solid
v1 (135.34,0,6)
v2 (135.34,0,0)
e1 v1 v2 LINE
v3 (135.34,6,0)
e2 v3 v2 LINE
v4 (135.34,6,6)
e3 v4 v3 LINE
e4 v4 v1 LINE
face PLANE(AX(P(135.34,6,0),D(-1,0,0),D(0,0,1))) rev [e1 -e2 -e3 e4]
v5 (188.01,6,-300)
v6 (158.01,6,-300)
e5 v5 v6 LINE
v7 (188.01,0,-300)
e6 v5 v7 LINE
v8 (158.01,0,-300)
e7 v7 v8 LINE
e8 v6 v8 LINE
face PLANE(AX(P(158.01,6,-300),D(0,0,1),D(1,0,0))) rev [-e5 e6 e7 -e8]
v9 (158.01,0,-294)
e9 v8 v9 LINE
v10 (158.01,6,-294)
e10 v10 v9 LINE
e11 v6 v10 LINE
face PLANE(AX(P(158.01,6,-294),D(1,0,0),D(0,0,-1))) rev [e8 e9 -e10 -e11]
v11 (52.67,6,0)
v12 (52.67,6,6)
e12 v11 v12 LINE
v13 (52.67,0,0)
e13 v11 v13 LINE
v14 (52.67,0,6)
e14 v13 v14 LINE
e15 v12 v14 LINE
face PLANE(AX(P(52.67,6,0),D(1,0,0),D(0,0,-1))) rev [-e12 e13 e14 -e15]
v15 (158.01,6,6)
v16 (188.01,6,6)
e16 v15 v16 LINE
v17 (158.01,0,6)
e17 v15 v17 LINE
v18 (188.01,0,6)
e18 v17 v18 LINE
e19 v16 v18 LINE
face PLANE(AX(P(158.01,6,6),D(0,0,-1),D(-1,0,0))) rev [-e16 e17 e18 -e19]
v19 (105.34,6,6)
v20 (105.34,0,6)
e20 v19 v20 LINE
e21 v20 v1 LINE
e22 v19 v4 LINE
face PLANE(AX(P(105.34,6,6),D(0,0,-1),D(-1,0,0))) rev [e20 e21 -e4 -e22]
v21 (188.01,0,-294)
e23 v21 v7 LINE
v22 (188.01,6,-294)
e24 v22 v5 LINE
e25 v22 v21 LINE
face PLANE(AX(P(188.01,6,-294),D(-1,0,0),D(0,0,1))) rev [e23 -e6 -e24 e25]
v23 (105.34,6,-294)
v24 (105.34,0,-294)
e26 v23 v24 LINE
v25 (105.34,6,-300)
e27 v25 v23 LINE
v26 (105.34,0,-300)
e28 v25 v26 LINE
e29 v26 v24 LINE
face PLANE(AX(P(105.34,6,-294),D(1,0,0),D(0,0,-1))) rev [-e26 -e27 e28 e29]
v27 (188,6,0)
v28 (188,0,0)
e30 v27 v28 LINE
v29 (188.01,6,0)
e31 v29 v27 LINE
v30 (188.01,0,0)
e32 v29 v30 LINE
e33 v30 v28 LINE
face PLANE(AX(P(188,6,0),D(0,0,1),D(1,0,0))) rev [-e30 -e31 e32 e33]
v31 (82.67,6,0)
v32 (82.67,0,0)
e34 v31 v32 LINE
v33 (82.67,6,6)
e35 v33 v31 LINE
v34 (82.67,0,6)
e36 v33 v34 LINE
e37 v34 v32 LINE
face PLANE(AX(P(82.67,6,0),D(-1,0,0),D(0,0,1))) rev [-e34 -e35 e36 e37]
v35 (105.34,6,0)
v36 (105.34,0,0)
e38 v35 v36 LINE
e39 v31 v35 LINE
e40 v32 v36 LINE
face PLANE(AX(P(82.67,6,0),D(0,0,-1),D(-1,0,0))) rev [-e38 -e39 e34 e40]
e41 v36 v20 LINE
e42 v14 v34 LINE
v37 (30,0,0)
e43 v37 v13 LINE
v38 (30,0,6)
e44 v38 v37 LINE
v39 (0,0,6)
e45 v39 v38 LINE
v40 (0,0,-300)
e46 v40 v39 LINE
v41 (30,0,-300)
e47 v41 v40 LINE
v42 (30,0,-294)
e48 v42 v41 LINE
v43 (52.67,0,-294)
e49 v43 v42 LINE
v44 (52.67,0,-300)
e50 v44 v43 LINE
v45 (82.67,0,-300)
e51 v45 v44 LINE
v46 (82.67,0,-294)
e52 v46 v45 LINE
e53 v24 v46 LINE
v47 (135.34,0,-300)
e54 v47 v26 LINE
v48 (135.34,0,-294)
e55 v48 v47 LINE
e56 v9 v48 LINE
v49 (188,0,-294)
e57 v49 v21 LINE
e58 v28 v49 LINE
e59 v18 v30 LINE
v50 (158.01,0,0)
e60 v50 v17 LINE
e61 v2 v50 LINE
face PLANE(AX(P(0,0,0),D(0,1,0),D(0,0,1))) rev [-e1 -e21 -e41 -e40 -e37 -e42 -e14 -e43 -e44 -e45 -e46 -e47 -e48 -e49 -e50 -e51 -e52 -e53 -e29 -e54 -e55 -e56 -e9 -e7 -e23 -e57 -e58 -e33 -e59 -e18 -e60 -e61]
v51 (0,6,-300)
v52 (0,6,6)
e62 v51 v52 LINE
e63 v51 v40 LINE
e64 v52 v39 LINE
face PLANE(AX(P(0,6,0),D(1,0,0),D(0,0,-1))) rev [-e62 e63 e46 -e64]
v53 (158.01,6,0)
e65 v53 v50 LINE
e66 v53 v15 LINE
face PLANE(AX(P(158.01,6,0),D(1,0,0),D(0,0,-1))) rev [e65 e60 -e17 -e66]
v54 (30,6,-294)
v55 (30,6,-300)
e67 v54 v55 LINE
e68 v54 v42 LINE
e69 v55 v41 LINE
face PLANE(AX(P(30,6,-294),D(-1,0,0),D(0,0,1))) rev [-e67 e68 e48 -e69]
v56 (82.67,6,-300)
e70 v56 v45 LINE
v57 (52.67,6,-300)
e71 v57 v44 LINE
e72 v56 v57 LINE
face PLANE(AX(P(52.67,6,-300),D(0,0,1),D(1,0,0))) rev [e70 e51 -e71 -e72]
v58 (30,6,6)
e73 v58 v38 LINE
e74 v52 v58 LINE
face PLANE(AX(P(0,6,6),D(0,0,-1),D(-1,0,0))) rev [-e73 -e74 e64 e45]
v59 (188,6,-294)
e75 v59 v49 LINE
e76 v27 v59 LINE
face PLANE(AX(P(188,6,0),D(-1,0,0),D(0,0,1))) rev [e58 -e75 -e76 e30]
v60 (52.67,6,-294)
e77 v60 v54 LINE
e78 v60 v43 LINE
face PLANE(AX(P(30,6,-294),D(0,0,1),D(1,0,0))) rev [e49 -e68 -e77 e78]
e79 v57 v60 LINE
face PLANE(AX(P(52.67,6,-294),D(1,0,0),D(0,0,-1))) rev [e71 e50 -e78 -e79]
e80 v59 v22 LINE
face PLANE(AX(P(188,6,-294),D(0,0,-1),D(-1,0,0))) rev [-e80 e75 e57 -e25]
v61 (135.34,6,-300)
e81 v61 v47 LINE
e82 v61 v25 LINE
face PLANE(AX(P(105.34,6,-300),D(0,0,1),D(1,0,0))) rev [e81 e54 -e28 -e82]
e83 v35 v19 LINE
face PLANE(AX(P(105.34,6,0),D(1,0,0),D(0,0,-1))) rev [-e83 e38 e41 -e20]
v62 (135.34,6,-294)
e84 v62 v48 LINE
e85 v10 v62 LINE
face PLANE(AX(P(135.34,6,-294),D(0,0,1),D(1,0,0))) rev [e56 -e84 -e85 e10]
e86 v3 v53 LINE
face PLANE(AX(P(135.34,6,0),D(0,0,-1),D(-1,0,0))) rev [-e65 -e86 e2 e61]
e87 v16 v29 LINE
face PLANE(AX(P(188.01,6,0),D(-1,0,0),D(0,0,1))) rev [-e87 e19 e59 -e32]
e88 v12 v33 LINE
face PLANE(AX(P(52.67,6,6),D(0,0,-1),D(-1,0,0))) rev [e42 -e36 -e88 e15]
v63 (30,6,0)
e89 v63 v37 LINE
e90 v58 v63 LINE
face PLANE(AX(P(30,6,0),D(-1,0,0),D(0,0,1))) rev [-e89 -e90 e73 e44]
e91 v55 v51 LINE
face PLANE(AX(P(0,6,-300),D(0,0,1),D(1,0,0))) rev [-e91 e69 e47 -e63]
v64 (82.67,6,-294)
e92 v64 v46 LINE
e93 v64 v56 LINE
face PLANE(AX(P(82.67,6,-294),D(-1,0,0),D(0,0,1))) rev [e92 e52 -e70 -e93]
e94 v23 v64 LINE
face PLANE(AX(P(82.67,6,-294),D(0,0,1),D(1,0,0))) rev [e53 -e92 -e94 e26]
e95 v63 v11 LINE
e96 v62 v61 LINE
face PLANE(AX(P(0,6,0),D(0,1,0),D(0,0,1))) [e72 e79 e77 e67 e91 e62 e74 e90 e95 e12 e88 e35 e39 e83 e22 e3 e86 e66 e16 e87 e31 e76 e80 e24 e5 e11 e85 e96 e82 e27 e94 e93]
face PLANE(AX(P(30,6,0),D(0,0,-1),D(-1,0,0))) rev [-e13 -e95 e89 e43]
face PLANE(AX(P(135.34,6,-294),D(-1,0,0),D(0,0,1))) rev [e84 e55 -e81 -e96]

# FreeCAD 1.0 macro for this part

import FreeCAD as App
import Part
import Sketcher

V = App.Vector


def add_polygon(sketch, points):
    """Adds a closed chain of lines whose ends are joined by coincident constraints."""
    first, n = sketch.GeometryCount, len(points)
    for a, b in zip(points, points[1:] + points[:1]):
        sketch.addGeometry(Part.LineSegment(App.Vector(*a, 0), App.Vector(*b, 0)), False)
    for i in range(n):
        sketch.addConstraint(Sketcher.Constraint("Coincident", first + i, 2, first + (i + 1) % n, 1))

doc = App.newDocument("Part")
params = doc.addObject("Spreadsheet::Sheet", "Params")
for row, (alias, value) in enumerate([
    ("sketch1_width", "30 mm"),
    ("sketch1_height", "6 mm"),
    ("sketch1_height2", "294 mm"),
    ("sketch1_width2", "22.67 mm"),
    ("pad1_length", "6 mm"),
], start=1):
    params.set(f"A{row}", alias)
    params.set(f"B{row}", "=" + value)
    params.setAlias(f"B{row}", alias)

body = doc.addObject("PartDesign::Body", "Body")

# Sketch on XZ plane
sketch1 = doc.addObject("Sketcher::SketchObject", "Sketch")
body.addObject(sketch1)
sketch1.AttachmentSupport = (doc.XZ_Plane, [""])
sketch1.MapMode = "FlatFace"
add_polygon(sketch1, [(30, 0), (52.67, 0), (52.67, 6), (82.67, 6), (82.67, 0), (105.34, 0), (105.34, 6), (135.34, 6), (135.34, 0), (158.01, 0), (158.01, 6), (188.01, 6), (188.01, 0), (188, 0), (188, -294), (188.01, -294), (188.01, -300), (158.01, -300), (158.01, -294), (135.34, -294), (135.34, -300), (105.34, -300), (105.34, -294), (82.67, -294), (82.67, -300), (52.67, -300), (52.67, -294), (30, -294), (30, -300), (0, -300), (0, 6), (30, 6)])  # lines 0-31
sketch1.addConstraint(Sketcher.Constraint("Horizontal", 0))
sketch1.addConstraint(Sketcher.Constraint("Vertical", 1))
sketch1.addConstraint(Sketcher.Constraint("Horizontal", 2))
sketch1.addConstraint(Sketcher.Constraint("Vertical", 3))
sketch1.addConstraint(Sketcher.Constraint("Horizontal", 4))
sketch1.addConstraint(Sketcher.Constraint("Vertical", 5))
sketch1.addConstraint(Sketcher.Constraint("Horizontal", 6))
sketch1.addConstraint(Sketcher.Constraint("Vertical", 7))
sketch1.addConstraint(Sketcher.Constraint("Horizontal", 8))
sketch1.addConstraint(Sketcher.Constraint("Vertical", 9))
sketch1.addConstraint(Sketcher.Constraint("Horizontal", 10))
sketch1.addConstraint(Sketcher.Constraint("Vertical", 11))
sketch1.addConstraint(Sketcher.Constraint("Horizontal", 12))
sketch1.addConstraint(Sketcher.Constraint("Vertical", 13))
sketch1.addConstraint(Sketcher.Constraint("Horizontal", 14))
sketch1.addConstraint(Sketcher.Constraint("Vertical", 15))
sketch1.addConstraint(Sketcher.Constraint("Horizontal", 16))
sketch1.addConstraint(Sketcher.Constraint("Vertical", 17))
sketch1.addConstraint(Sketcher.Constraint("Horizontal", 18))
sketch1.addConstraint(Sketcher.Constraint("Vertical", 19))
sketch1.addConstraint(Sketcher.Constraint("Horizontal", 20))
sketch1.addConstraint(Sketcher.Constraint("Vertical", 21))
sketch1.addConstraint(Sketcher.Constraint("Horizontal", 22))
sketch1.addConstraint(Sketcher.Constraint("Vertical", 23))
sketch1.addConstraint(Sketcher.Constraint("Horizontal", 24))
sketch1.addConstraint(Sketcher.Constraint("Vertical", 25))
sketch1.addConstraint(Sketcher.Constraint("Horizontal", 26))
sketch1.addConstraint(Sketcher.Constraint("Vertical", 27))
sketch1.addConstraint(Sketcher.Constraint("Horizontal", 28))
sketch1.addConstraint(Sketcher.Constraint("Vertical", 29))
sketch1.addConstraint(Sketcher.Constraint("Horizontal", 30))
sketch1.addConstraint(Sketcher.Constraint("Vertical", 31))
sketch1.addConstraint(Sketcher.Constraint("PointOnObject", 0, 2, -1))
sketch1.addConstraint(Sketcher.Constraint("PointOnObject", 3, 2, -1))
sketch1.addConstraint(Sketcher.Constraint("PointOnObject", 7, 2, -1))
sketch1.addConstraint(Sketcher.Constraint("PointOnObject", 11, 2, -1))
sketch1.addConstraint(Sketcher.Constraint("PointOnObject", 28, 2, -2))
sketch1.addConstraint(Sketcher.Constraint("Horizontal", 2, 2, 5, 2))
sketch1.addConstraint(Sketcher.Constraint("Horizontal", 6, 2, 9, 2))
sketch1.addConstraint(Sketcher.Constraint("Horizontal", 14, 2, 17, 2))
sketch1.addConstraint(Sketcher.Constraint("Horizontal", 16, 2, 19, 2))
sketch1.addConstraint(Sketcher.Constraint("Horizontal", 18, 2, 21, 2))
sketch1.addConstraint(Sketcher.Constraint("Horizontal", 20, 2, 23, 2))
sketch1.addConstraint(Sketcher.Constraint("Horizontal", 22, 2, 25, 2))
sketch1.addConstraint(Sketcher.Constraint("Horizontal", 24, 2, 27, 2))
sketch1.addConstraint(Sketcher.Constraint("Horizontal", 10, 2, 29, 2))
sketch1.addConstraint(Sketcher.Constraint("Vertical", 11, 2, 14, 2))
sketch1.addConstraint(Sketcher.Constraint("Vertical", 9, 2, 16, 2))
sketch1.addConstraint(Sketcher.Constraint("Vertical", 7, 2, 18, 2))
sketch1.addConstraint(Sketcher.Constraint("Vertical", 5, 2, 20, 2))
sketch1.addConstraint(Sketcher.Constraint("Vertical", 3, 2, 22, 2))
sketch1.addConstraint(Sketcher.Constraint("Vertical", 1, 2, 24, 2))
sketch1.addConstraint(Sketcher.Constraint("Vertical", 27, 2, 30, 2))
sketch1.addConstraint(Sketcher.Constraint("Equal", 0, 4))
sketch1.addConstraint(Sketcher.Constraint("Equal", 2, 6))
sketch1.addConstraint(Sketcher.Constraint("Equal", 4, 8))
sketch1.addConstraint(Sketcher.Constraint("Equal", 6, 10))
sketch1.addConstraint(Sketcher.Constraint("Equal", 24, 28))
sketch1.addConstraint(Sketcher.Constraint("Equal", 11, 15))
sketch1.addConstraint(Sketcher.Constraint("DistanceX", 2, 1, 2, 2, 30.0))
sketch1.addConstraint(Sketcher.Constraint("DistanceY", 1, 1, 1, 2, 6.0))
sketch1.addConstraint(Sketcher.Constraint("DistanceY", 13, 2, 13, 1, 294.0))
sketch1.addConstraint(Sketcher.Constraint("DistanceX", -1, 1, 12, 2, 188.0))
sketch1.addConstraint(Sketcher.Constraint("DistanceX", 0, 1, 0, 2, 22.67))
sketch1.setExpression("Constraints[91]", "Params.sketch1_width")
sketch1.setExpression("Constraints[92]", "Params.sketch1_height")
sketch1.setExpression("Constraints[93]", "Params.sketch1_height2")
sketch1.setExpression("Constraints[95]", "Params.sketch1_width2")
pad1 = doc.addObject("PartDesign::Pad", "Pad")
body.addObject(pad1)
pad1.Profile = sketch1
pad1.setExpression("Length", "Params.pad1_length")
pad1.Reversed = True

doc.recompute()
